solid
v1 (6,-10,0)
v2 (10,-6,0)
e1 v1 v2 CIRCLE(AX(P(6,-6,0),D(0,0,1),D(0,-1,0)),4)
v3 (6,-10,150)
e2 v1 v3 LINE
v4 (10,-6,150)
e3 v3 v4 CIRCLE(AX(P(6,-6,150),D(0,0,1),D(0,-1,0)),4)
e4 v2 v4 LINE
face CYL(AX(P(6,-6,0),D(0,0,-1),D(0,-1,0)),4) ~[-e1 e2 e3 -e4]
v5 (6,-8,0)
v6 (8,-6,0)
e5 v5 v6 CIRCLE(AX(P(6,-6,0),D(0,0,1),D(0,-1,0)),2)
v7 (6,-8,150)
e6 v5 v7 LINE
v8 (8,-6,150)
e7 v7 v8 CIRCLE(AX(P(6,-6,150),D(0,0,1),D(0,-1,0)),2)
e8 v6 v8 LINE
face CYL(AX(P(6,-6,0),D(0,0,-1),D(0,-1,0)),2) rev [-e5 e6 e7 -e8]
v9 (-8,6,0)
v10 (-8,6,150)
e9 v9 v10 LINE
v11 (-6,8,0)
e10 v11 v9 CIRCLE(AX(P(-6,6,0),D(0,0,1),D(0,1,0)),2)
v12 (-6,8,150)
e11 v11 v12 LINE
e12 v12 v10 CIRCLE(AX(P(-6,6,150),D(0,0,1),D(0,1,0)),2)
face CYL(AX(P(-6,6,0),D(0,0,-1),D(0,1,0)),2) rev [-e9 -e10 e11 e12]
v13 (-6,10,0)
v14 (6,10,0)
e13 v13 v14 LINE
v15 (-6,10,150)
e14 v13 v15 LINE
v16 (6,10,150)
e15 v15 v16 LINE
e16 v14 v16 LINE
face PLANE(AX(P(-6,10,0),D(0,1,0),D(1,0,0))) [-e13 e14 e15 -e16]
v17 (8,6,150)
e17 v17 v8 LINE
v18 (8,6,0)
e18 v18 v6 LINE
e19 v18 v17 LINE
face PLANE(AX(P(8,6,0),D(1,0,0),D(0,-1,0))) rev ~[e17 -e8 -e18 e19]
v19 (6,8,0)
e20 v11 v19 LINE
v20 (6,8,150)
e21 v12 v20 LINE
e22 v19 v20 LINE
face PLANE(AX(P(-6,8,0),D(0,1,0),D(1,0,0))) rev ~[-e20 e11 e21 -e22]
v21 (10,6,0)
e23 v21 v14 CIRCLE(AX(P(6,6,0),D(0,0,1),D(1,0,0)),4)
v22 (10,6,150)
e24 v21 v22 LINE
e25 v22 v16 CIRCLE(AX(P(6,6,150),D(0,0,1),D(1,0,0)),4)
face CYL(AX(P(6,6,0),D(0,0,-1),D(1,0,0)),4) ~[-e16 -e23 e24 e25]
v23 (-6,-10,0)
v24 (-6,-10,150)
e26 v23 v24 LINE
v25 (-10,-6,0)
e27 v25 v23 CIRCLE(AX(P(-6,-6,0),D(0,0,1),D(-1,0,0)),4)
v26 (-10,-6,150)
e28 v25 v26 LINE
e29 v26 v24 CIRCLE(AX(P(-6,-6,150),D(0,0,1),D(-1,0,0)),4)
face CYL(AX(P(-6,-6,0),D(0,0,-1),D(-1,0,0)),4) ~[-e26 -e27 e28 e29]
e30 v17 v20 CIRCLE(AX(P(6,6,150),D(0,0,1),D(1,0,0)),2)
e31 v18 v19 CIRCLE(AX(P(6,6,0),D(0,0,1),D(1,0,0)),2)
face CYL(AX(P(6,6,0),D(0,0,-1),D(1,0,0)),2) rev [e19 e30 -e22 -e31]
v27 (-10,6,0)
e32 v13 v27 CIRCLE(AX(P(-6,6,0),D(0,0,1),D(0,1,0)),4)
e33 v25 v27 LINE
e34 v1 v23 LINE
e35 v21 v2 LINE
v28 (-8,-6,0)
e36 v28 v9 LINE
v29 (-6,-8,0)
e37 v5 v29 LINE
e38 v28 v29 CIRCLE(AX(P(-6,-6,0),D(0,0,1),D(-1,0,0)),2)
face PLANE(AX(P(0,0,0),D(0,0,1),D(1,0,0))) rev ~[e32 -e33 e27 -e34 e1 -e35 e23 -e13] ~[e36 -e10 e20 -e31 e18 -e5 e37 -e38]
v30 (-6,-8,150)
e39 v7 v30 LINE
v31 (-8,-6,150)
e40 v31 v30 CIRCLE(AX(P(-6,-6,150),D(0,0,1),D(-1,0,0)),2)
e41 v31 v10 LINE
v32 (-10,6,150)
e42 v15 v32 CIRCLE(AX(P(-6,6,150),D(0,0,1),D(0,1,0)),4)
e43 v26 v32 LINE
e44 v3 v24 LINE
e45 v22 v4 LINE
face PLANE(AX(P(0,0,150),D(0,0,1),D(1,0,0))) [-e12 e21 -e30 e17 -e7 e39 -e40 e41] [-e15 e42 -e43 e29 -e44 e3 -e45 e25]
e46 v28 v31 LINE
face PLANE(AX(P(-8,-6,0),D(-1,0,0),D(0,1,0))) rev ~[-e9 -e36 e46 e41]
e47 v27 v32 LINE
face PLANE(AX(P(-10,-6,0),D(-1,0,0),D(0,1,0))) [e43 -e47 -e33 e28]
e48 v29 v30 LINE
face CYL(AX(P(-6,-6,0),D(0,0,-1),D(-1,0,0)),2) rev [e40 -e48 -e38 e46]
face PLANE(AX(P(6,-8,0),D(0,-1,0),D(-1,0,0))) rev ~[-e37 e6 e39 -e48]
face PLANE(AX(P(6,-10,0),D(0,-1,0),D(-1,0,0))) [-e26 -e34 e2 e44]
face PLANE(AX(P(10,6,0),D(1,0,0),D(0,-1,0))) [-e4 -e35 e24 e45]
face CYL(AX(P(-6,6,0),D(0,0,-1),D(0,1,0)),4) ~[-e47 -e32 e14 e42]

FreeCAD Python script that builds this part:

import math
import FreeCAD as App
import Part
import Sketcher
Q = App.Units.Quantity

doc = App.newDocument("Part")
params = doc.addObject("Spreadsheet::Sheet", "Params")
for row, (alias, value) in enumerate([
    ("sketch1_radius", "4 mm"),
    ("sketch1_radius2", "2 mm"),
    ("pad1_length", "150 mm"),
], start=1):
    params.set(f"A{row}", alias)
    params.set(f"B{row}", "=" + value)
    params.setAlias(f"B{row}", alias)

body = doc.addObject("PartDesign::Body", "Body")

# Sketch on XY plane
sketch1 = body.newObject("Sketcher::SketchObject", "Sketch")
sketch1.AttachmentSupport = (doc.getObject("XY_Plane"), [""])
sketch1.MapMode = "FlatFace"
sketch1.addGeometry(Part.LineSegment(App.Vector(-10, 6, 0), App.Vector(-10, -6, 0)), False)
sketch1.addGeometry(Part.ArcOfCircle(Part.Circle(App.Vector(-6, -6, 0), App.Vector(0, 0, 1), 4), math.radians(180), math.radians(270)), False)
sketch1.addGeometry(Part.LineSegment(App.Vector(-6, -10, 0), App.Vector(6, -10, 0)), False)
sketch1.addGeometry(Part.ArcOfCircle(Part.Circle(App.Vector(6, -6, 0), App.Vector(0, 0, 1), 4), math.radians(-90), math.radians(0)), False)
sketch1.addGeometry(Part.LineSegment(App.Vector(10, -6, 0), App.Vector(10, 6, 0)), False)
sketch1.addGeometry(Part.ArcOfCircle(Part.Circle(App.Vector(6, 6, 0), App.Vector(0, 0, 1), 4), math.radians(0), math.radians(90)), False)
sketch1.addGeometry(Part.LineSegment(App.Vector(6, 10, 0), App.Vector(-6, 10, 0)), False)
sketch1.addGeometry(Part.ArcOfCircle(Part.Circle(App.Vector(-6, 6, 0), App.Vector(0, 0, 1), 4), math.radians(90), math.radians(180)), False)
sketch1.addGeometry(Part.ArcOfCircle(Part.Circle(App.Vector(-6, 6, 0), App.Vector(0, 0, 1), 2), math.radians(90), math.radians(180)), False)
sketch1.addGeometry(Part.LineSegment(App.Vector(-6, 8, 0), App.Vector(6, 8, 0)), False)
sketch1.addGeometry(Part.ArcOfCircle(Part.Circle(App.Vector(6, 6, 0), App.Vector(0, 0, 1), 2), math.radians(0), math.radians(90)), False)
sketch1.addGeometry(Part.LineSegment(App.Vector(8, 6, 0), App.Vector(8, -6, 0)), False)
sketch1.addGeometry(Part.ArcOfCircle(Part.Circle(App.Vector(6, -6, 0), App.Vector(0, 0, 1), 2), math.radians(-90), math.radians(0)), False)
sketch1.addGeometry(Part.LineSegment(App.Vector(6, -8, 0), App.Vector(-6, -8, 0)), False)
sketch1.addGeometry(Part.ArcOfCircle(Part.Circle(App.Vector(-6, -6, 0), App.Vector(0, 0, 1), 2), math.radians(180), math.radians(270)), False)
sketch1.addGeometry(Part.LineSegment(App.Vector(-8, -6, 0), App.Vector(-8, 6, 0)), False)
sketch1.addConstraint(Sketcher.Constraint("Tangent", 0, 2, 1, 1))
sketch1.addConstraint(Sketcher.Constraint("Tangent", 1, 2, 2, 1))
sketch1.addConstraint(Sketcher.Constraint("Tangent", 2, 2, 3, 1))
sketch1.addConstraint(Sketcher.Constraint("Tangent", 3, 2, 4, 1))
sketch1.addConstraint(Sketcher.Constraint("Tangent", 4, 2, 5, 1))
sketch1.addConstraint(Sketcher.Constraint("Tangent", 5, 2, 6, 1))
sketch1.addConstraint(Sketcher.Constraint("Tangent", 6, 2, 7, 1))
sketch1.addConstraint(Sketcher.Constraint("Tangent", 7, 2, 0, 1))
sketch1.addConstraint(Sketcher.Constraint("Tangent", 8, 1, 9, 1))
sketch1.addConstraint(Sketcher.Constraint("Tangent", 9, 2, 10, 2))
sketch1.addConstraint(Sketcher.Constraint("Tangent", 10, 1, 11, 1))
sketch1.addConstraint(Sketcher.Constraint("Tangent", 11, 2, 12, 2))
sketch1.addConstraint(Sketcher.Constraint("Tangent", 12, 1, 13, 1))
sketch1.addConstraint(Sketcher.Constraint("Tangent", 13, 2, 14, 2))
sketch1.addConstraint(Sketcher.Constraint("Tangent", 14, 1, 15, 1))
sketch1.addConstraint(Sketcher.Constraint("Tangent", 15, 2, 8, 2))
sketch1.addConstraint(Sketcher.Constraint("Vertical", 0))
sketch1.addConstraint(Sketcher.Constraint("Horizontal", 2))
sketch1.addConstraint(Sketcher.Constraint("Vertical", 4))
sketch1.addConstraint(Sketcher.Constraint("Horizontal", 6))
sketch1.addConstraint(Sketcher.Constraint("Horizontal", 9))
sketch1.addConstraint(Sketcher.Constraint("Vertical", 11))
sketch1.addConstraint(Sketcher.Constraint("Horizontal", 13))
sketch1.addConstraint(Sketcher.Constraint("Vertical", 15))
sketch1.addConstraint(Sketcher.Constraint("Coincident", 8, 3, 7, 3))
sketch1.addConstraint(Sketcher.Constraint("Coincident", 10, 3, 5, 3))
sketch1.addConstraint(Sketcher.Constraint("Coincident", 12, 3, 3, 3))
sketch1.addConstraint(Sketcher.Constraint("Equal", 1, 3))
sketch1.addConstraint(Sketcher.Constraint("Equal", 3, 5))
sketch1.addConstraint(Sketcher.Constraint("Equal", 5, 7))
sketch1.addConstraint(Sketcher.Constraint("Equal", 12, 14))
sketch1.addConstraint(Sketcher.Constraint("Symmetric", 1, 3, 5, 3, -1, 1))
sketch1.addConstraint(Sketcher.Constraint("Equal", 13, 0))
sketch1.addConstraint(Sketcher.Constraint("Radius", 1, Q("4 mm")))
sketch1.addConstraint(Sketcher.Constraint("Radius", 8, Q("2 mm")))
sketch1.addConstraint(Sketcher.Constraint("DistanceX", 0, 2, -1, 1, Q("10 mm")))
sketch1.setExpression("Constraints[33]", "Params.sketch1_radius")
sketch1.setExpression("Constraints[34]", "Params.sketch1_radius2")
pad1 = body.newObject("PartDesign::Pad", "Pad")
pad1.Profile = sketch1
pad1.setExpression("Length", "Params.pad1_length")

doc.recompute()
